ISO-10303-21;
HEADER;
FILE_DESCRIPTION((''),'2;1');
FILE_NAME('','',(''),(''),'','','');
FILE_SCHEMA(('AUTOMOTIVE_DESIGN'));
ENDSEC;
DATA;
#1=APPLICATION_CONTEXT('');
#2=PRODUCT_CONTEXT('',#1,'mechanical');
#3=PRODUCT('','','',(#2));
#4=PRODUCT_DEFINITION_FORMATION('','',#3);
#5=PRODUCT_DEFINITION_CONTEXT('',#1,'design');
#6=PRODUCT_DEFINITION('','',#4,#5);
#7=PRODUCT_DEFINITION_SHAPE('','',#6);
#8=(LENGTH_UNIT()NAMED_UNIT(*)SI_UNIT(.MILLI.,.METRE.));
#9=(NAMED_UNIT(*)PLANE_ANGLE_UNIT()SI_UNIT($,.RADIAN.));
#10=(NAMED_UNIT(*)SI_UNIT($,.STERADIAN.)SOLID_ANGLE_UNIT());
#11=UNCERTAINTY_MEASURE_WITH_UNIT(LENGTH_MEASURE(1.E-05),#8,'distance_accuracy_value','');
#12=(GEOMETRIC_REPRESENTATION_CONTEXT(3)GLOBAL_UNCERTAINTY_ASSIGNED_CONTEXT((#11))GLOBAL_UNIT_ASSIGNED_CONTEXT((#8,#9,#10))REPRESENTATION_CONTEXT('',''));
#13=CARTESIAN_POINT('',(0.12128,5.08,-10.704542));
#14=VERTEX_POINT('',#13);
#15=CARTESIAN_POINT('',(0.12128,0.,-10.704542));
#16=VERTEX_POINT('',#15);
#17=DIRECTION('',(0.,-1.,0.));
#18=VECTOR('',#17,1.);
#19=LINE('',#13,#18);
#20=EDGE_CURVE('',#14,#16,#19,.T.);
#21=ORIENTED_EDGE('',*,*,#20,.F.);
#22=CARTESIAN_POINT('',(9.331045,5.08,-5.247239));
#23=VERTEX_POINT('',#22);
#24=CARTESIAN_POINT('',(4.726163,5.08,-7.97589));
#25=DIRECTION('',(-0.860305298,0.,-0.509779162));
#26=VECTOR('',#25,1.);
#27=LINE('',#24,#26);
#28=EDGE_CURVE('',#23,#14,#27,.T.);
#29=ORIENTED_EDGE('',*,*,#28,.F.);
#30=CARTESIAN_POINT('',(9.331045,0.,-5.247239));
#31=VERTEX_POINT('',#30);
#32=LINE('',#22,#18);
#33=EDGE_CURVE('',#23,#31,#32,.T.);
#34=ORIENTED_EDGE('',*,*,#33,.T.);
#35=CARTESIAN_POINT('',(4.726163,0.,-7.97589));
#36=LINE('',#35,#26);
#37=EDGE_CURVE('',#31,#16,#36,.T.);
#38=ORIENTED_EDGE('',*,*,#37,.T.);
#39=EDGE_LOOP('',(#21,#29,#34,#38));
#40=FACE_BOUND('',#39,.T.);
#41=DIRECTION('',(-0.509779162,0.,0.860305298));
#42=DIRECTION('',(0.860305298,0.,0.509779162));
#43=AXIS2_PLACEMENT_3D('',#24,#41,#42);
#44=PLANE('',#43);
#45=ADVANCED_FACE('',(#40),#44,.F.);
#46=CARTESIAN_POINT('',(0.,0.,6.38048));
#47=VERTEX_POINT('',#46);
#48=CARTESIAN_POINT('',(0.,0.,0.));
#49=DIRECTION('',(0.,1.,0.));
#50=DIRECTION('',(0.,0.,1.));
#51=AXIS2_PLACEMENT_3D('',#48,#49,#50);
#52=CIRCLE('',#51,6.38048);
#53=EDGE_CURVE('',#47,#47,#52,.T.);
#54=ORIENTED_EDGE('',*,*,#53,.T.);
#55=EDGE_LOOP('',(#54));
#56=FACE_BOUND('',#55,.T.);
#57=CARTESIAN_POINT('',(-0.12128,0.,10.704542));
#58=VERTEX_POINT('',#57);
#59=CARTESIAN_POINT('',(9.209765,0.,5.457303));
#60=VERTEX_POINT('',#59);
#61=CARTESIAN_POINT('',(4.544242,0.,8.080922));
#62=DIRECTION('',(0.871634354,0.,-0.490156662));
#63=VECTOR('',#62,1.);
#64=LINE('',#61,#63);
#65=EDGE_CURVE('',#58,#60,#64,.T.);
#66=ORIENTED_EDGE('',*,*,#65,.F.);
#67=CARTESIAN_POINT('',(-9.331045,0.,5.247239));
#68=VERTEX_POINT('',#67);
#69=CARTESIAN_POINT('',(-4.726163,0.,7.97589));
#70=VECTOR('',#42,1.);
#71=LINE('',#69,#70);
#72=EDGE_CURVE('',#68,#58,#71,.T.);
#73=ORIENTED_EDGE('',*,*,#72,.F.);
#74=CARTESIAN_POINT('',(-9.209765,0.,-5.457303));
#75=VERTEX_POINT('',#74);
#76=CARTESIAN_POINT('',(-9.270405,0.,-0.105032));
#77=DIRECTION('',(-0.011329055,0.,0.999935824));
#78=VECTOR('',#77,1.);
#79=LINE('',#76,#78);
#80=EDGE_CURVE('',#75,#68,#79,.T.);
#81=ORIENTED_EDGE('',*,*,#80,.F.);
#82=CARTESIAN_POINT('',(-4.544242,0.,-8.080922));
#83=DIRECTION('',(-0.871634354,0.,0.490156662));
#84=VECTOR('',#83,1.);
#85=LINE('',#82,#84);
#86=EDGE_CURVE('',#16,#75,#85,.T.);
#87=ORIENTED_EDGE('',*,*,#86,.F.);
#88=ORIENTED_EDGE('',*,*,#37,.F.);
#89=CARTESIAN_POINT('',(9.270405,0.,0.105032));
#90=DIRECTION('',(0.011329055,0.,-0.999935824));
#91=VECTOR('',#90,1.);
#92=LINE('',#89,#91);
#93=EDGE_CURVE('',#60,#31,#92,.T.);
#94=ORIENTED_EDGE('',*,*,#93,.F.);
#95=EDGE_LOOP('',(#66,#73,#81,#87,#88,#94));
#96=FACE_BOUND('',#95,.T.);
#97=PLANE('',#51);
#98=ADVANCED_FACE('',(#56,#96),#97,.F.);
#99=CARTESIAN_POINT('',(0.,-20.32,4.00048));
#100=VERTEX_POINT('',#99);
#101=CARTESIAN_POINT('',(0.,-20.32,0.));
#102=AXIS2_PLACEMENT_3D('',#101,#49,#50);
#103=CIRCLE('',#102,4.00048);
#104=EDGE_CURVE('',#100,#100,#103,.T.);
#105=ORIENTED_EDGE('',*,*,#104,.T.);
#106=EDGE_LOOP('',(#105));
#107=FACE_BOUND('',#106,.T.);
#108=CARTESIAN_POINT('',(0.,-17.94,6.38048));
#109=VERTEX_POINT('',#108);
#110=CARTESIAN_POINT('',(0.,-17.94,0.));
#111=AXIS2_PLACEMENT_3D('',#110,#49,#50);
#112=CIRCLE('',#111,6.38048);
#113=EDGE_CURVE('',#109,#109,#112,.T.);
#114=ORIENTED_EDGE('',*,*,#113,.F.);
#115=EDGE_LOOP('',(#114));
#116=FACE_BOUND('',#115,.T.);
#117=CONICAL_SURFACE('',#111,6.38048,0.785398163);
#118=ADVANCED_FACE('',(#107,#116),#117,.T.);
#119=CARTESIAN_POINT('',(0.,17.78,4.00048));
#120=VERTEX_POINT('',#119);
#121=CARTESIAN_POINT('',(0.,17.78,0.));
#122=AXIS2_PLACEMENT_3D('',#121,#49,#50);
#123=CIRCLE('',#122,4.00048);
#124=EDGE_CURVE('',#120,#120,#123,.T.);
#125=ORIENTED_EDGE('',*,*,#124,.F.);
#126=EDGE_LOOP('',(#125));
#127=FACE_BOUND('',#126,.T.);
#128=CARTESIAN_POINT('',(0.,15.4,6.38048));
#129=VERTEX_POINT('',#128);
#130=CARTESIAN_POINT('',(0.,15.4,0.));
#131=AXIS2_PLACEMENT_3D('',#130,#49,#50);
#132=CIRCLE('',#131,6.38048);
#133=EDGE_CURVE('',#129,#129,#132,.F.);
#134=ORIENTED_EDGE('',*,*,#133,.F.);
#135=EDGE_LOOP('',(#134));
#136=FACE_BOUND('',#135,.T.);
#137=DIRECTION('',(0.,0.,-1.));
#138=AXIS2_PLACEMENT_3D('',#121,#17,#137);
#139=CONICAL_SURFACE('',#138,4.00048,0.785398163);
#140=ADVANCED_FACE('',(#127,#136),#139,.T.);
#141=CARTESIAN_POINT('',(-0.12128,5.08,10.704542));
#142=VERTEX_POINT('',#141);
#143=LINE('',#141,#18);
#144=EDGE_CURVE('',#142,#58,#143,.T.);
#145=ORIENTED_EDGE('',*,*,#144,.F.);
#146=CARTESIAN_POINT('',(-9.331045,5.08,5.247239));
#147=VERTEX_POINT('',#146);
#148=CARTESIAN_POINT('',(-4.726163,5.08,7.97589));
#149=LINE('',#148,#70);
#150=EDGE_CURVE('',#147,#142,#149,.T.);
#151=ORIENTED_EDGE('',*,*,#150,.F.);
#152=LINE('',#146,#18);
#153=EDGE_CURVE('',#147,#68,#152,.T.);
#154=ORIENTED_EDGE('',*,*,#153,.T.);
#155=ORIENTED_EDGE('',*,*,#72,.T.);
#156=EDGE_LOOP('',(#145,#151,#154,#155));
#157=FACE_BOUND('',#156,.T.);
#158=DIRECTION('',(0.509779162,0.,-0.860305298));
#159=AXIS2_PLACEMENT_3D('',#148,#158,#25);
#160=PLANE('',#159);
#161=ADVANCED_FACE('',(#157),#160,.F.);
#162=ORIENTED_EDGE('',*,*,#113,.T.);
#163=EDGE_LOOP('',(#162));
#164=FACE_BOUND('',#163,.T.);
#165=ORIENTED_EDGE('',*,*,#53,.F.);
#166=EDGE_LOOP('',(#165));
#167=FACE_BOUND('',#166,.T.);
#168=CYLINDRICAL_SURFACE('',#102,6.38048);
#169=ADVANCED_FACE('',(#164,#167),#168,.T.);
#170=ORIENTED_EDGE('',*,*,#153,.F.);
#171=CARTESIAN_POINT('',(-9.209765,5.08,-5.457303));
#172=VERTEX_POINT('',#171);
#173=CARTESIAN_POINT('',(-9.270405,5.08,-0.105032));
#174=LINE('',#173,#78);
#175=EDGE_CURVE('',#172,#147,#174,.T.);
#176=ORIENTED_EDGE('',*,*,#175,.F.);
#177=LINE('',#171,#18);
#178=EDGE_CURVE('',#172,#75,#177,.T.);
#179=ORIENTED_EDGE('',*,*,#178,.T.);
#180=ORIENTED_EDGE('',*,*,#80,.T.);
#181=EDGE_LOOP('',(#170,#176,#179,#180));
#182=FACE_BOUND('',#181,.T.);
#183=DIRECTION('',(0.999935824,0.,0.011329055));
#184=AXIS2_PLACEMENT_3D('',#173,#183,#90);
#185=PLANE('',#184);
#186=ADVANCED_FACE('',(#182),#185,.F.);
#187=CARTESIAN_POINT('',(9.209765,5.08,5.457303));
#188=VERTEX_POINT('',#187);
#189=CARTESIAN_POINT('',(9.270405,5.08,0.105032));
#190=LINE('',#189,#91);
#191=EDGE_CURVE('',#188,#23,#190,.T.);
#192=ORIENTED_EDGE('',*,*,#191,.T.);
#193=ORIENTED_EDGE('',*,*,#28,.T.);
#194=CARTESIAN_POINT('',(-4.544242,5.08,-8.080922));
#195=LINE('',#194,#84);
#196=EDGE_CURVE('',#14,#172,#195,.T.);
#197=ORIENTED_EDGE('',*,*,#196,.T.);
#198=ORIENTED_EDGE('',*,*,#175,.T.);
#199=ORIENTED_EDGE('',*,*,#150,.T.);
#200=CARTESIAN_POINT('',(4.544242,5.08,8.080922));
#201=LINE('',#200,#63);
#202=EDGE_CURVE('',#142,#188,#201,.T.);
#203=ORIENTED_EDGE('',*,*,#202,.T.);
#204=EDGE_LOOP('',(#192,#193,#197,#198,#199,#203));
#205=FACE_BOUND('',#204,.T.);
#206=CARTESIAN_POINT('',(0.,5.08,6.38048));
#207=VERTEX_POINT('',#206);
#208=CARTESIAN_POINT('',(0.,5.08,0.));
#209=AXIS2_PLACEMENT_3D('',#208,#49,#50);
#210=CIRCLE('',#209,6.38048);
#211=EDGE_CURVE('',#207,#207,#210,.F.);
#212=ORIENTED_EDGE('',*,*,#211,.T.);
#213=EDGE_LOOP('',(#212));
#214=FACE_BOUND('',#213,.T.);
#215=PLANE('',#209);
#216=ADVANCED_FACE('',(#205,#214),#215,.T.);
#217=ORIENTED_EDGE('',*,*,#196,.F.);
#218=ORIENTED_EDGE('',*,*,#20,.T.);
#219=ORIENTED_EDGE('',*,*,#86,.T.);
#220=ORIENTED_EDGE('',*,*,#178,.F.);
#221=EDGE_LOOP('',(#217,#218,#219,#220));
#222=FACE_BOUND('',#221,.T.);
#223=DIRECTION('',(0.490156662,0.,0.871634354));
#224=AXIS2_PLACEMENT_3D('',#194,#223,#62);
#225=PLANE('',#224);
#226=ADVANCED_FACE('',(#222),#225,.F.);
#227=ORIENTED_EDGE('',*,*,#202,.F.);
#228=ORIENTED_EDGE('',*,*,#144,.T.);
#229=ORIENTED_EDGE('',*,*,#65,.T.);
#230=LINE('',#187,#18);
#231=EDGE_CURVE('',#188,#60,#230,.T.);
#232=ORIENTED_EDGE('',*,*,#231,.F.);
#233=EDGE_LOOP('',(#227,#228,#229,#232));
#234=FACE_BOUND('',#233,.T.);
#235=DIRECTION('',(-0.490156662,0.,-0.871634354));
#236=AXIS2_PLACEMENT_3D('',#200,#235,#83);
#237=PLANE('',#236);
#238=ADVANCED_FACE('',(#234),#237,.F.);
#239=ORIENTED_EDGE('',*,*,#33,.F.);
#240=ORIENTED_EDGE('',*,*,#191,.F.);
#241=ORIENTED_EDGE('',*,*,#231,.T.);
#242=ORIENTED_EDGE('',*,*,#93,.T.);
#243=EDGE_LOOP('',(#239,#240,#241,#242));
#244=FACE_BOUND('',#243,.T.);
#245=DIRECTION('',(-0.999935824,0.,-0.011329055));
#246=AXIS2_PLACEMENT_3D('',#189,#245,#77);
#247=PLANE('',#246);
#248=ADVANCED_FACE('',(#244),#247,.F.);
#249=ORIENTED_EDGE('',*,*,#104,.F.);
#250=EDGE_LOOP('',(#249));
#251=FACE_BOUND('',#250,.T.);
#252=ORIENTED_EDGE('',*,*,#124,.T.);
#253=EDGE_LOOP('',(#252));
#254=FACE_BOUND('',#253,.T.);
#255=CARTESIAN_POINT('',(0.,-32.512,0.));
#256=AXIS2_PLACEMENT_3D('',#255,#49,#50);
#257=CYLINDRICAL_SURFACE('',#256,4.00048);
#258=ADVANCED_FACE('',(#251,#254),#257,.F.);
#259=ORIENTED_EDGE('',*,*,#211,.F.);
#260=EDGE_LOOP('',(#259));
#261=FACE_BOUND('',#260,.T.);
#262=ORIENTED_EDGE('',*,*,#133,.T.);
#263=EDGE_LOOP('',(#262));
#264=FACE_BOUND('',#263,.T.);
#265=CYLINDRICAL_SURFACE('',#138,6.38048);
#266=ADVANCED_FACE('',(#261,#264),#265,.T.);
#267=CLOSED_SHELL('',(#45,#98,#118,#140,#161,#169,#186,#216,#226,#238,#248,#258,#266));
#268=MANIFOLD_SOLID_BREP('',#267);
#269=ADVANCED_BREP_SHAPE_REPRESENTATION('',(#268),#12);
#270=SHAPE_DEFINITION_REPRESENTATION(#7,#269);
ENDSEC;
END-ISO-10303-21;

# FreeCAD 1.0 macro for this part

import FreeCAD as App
import Part
import Sketcher

V = App.Vector
Q = App.Units.Quantity


def edges_at(feature, points):
    """Names of the edges that pass closest to the given points."""
    edges = feature.Shape.Edges
    near = lambda p: min(range(len(edges)), key=lambda i: edges[i].distToShape(Part.Vertex(*p))[0])
    return sorted({f"Edge{near(p) + 1}" for p in points})

doc = App.newDocument("Part")
params = doc.addObject("Spreadsheet::Sheet", "Params")
for row, (alias, value) in enumerate([
    ("pad1_length", "0.2 in"),
    ("pad2_length", "0.7 in"),
    ("pad3_length", "0.8 in"),
    ("pocket1_length", "1.98 in"),
    ("chamfer_size", "2.38 mm"),
    ("chamfer2_size", "2.38 mm"),
], start=1):
    params.set(f"A{row}", alias)
    params.set(f"B{row}", "=" + value)
    params.setAlias(f"B{row}", alias)

body = doc.addObject("PartDesign::Body", "Body")

# Sketch on XZ plane
sketch1 = body.newObject("Sketcher::SketchObject", "Sketch")
sketch1.AttachmentSupport = (doc.getObject("XZ_Plane"), [""])
sketch1.MapMode = "FlatFace"
sketch1.addGeometry([
    Part.LineSegment(V(9.209765, 5.457303, 0), V(9.331045, -5.247239, 0)),  # 0
    Part.LineSegment(V(9.331045, -5.247239, 0), V(0.12128, -10.704542, 0)),  # 1
    Part.LineSegment(V(0.12128, -10.704542, 0), V(-9.209765, -5.457303, 0)),  # 2
    Part.LineSegment(V(-9.209765, -5.457303, 0), V(-9.331045, 5.247239, 0)),  # 3
    Part.LineSegment(V(-9.331045, 5.247239, 0), V(-0.12128, 10.704542, 0)),  # 4
    Part.LineSegment(V(-0.12128, 10.704542, 0), V(9.209765, 5.457303, 0)),  # 5
], False)
sketch1.addConstraint([
    Sketcher.Constraint("Coincident", 0, 2, 1, 1),
    Sketcher.Constraint("Coincident", 1, 2, 2, 1),
    Sketcher.Constraint("Coincident", 2, 2, 3, 1),
    Sketcher.Constraint("Coincident", 3, 2, 4, 1),
    Sketcher.Constraint("Coincident", 4, 2, 5, 1),
    Sketcher.Constraint("Coincident", 5, 2, 0, 1),
    Sketcher.Constraint("Symmetric", 0, 2, 3, 2, -1, 1),
    Sketcher.Constraint("Symmetric", 1, 2, 4, 2, -1, 1),
    Sketcher.Constraint("Symmetric", 2, 2, 5, 2, -1, 1),
    Sketcher.Constraint("Equal", 0, 1),
    Sketcher.Constraint("Equal", 1, 2),
    Sketcher.Constraint("Distance", 0, Q("10.705229 mm")),
    Sketcher.Constraint("DistanceY", 0, 2, -1, 1, Q("5.247239 mm")),
    Sketcher.Constraint("DistanceX", -1, 1, 1, 2, Q("0.12128 mm")),
    Sketcher.Constraint("DistanceY", 1, 2, -1, 1, Q("10.704542 mm")),
])
pad1 = body.newObject("PartDesign::Pad", "Pad")
pad1.Profile = sketch1
pad1.setExpression("Length", "Params.pad1_length")
pad1.Reversed = True

# Sketch on XZ plane
sketch2 = body.newObject("Sketcher::SketchObject", "Sketch001")
sketch2.AttachmentSupport = (doc.getObject("XZ_Plane"), [""])
sketch2.MapMode = "FlatFace"
sketch2.addGeometry(Part.Circle(V(0, 0, 0), V(0, 0, 1), 6.38048), False)
sketch2.addConstraint([
    Sketcher.Constraint("Coincident", 0, 3, -1, 1),
    Sketcher.Constraint("Diameter", 0, Q("0.5024 in")),
])
pad2 = body.newObject("PartDesign::Pad", "Pad001")
pad2.Profile = sketch2
pad2.setExpression("Length", "Params.pad2_length")
pad2.Reversed = True

# Sketch on XZ plane
sketch3 = body.newObject("Sketcher::SketchObject", "Sketch002")
sketch3.AttachmentSupport = (doc.getObject("XZ_Plane"), [""])
sketch3.MapMode = "FlatFace"
sketch3.addGeometry(Part.Circle(V(0, 0, 0), V(0, 0, 1), 6.38048), False)
sketch3.addConstraint([
    Sketcher.Constraint("Coincident", 0, 3, -1, 1),
    Sketcher.Constraint("Diameter", 0, Q("0.5024 in")),
])
pad3 = body.newObject("PartDesign::Pad", "Pad002")
pad3.Profile = sketch3
pad3.setExpression("Length", "Params.pad3_length")

# Sketch on XZ plane
sketch4 = body.newObject("Sketcher::SketchObject", "Sketch003")
sketch4.AttachmentSupport = (doc.getObject("XZ_Plane"), [""])
sketch4.MapMode = "FlatFace"
sketch4.AttachmentOffset = App.Placement(V(0, 0, -0.7 * 25.4), App.Rotation())
sketch4.addGeometry(Part.Circle(V(0, 0, 0), V(0, 0, 1), 4.00048), False)
sketch4.addConstraint([
    Sketcher.Constraint("Coincident", 0, 3, -1, 1),
    Sketcher.Constraint("Diameter", 0, Q("8.000959 mm")),
])
pocket1 = body.newObject("PartDesign::Pocket", "Pocket")
pocket1.Profile = sketch4
pocket1.setExpression("Length", "Params.pocket1_length")
pocket1.Reversed = True
doc.recompute()

chamfer = body.newObject("PartDesign::Chamfer", "Chamfer")
chamfer.Base = (pocket1, edges_at(pocket1, [(-6.38, 17.78, 0)]))
chamfer.setExpression("Size", "Params.chamfer_size")
doc.recompute()

chamfer2 = body.newObject("PartDesign::Chamfer", "Chamfer001")
chamfer2.Base = (chamfer, edges_at(chamfer, [(-6.38, -20.32, 0)]))
chamfer2.setExpression("Size", "Params.chamfer2_size")

doc.recompute()
